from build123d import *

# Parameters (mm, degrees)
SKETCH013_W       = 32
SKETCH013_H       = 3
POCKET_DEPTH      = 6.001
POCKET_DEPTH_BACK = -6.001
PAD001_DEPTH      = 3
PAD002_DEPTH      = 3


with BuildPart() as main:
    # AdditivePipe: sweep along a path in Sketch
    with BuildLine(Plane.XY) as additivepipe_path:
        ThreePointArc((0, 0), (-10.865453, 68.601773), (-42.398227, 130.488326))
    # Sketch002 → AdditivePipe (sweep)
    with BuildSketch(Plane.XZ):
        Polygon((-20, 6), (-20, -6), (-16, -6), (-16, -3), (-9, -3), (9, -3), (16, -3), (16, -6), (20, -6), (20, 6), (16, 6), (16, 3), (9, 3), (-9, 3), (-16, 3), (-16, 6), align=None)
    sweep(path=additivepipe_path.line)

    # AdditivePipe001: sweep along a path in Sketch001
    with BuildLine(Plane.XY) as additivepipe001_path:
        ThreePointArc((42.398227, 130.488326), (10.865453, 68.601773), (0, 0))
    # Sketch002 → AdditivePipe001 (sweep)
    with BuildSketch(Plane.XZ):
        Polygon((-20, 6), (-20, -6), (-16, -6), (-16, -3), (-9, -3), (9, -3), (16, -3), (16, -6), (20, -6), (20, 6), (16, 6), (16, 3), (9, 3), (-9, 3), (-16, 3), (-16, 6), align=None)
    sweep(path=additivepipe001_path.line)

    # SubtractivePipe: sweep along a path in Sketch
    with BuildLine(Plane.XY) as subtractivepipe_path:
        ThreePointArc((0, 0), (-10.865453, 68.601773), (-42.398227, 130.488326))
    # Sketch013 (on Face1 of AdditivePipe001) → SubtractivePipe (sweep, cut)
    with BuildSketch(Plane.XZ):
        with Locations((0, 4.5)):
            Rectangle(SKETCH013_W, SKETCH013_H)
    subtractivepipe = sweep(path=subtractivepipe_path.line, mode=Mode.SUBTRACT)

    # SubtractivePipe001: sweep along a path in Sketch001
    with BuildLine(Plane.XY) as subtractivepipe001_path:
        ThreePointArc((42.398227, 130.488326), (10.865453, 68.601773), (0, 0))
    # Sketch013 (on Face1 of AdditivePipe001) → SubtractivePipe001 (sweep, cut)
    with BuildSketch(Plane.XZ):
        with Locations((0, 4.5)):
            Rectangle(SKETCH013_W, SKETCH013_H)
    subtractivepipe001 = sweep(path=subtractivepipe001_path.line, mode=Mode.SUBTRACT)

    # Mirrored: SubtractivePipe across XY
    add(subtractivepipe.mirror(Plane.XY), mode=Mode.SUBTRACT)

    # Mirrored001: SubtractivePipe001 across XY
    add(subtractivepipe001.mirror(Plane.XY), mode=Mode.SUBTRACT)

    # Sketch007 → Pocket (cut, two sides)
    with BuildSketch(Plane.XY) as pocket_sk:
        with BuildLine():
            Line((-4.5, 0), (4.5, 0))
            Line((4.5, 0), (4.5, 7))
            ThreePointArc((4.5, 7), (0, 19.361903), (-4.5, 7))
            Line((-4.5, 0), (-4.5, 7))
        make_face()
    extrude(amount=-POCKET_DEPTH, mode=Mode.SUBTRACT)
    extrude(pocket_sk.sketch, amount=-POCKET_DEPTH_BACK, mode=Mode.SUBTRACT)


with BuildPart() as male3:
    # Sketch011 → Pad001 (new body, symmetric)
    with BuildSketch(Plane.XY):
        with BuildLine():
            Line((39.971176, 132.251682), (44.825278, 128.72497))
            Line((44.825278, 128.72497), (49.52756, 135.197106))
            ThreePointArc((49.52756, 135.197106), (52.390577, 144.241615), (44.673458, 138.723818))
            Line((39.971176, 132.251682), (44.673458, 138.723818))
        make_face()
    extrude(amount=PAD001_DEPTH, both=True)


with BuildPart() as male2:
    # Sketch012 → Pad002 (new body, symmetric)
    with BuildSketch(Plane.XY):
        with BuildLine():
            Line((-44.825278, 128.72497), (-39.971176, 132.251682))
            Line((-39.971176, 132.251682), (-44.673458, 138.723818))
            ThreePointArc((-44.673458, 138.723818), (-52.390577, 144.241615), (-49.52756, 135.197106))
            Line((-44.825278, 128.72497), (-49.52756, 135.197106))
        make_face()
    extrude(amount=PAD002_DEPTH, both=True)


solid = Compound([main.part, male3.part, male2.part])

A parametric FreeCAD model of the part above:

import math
import FreeCAD as App
import Part
import Sketcher
from FreeCAD import Vector
Q = App.Units.Quantity

doc = App.newDocument("Part")
body = doc.addObject("PartDesign::Body", "Body")

sketch1 = body.newObject("Sketcher::SketchObject", "Sketch")
sketch1.AttachmentSupport = (doc.getObject("XZ_Plane"), [""])
sketch1.MapMode = "FlatFace"
sketch1.addGeometry([
    Part.LineSegment(Vector(-20, 6, 0), Vector(-20, -6, 0)),
    Part.LineSegment(Vector(-20, -6, 0), Vector(-16, -6, 0)),
    Part.LineSegment(Vector(-16, -6, 0), Vector(-16, -3, 0)),
    Part.LineSegment(Vector(-16, -3, 0), Vector(16, -3, 0)),
    Part.LineSegment(Vector(16, -3, 0), Vector(16, -6, 0)),
    Part.LineSegment(Vector(16, -6, 0), Vector(20, -6, 0)),
    Part.LineSegment(Vector(20, -6, 0), Vector(20, 6, 0)),
    Part.LineSegment(Vector(20, 6, 0), Vector(16, 6, 0)),
    Part.LineSegment(Vector(16, 6, 0), Vector(16, 3, 0)),
    Part.LineSegment(Vector(16, 3, 0), Vector(-16, 3, 0)),
    Part.LineSegment(Vector(-16, 3, 0), Vector(-16, 6, 0)),
    Part.LineSegment(Vector(-16, 6, 0), Vector(-20, 6, 0)),
], False)
sketch1.addConstraint([
    Sketcher.Constraint("Coincident", 0, 2, 1, 1),
    Sketcher.Constraint("Coincident", 1, 2, 2, 1),
    Sketcher.Constraint("Coincident", 2, 2, 3, 1),
    Sketcher.Constraint("Coincident", 3, 2, 4, 1),
    Sketcher.Constraint("Coincident", 4, 2, 5, 1),
    Sketcher.Constraint("Coincident", 5, 2, 6, 1),
    Sketcher.Constraint("Coincident", 6, 2, 7, 1),
    Sketcher.Constraint("Coincident", 7, 2, 8, 1),
    Sketcher.Constraint("Coincident", 8, 2, 9, 1),
    Sketcher.Constraint("Coincident", 9, 2, 10, 1),
    Sketcher.Constraint("Coincident", 10, 2, 11, 1),
    Sketcher.Constraint("Coincident", 11, 2, 0, 1),
    Sketcher.Constraint("Vertical", 0),
    Sketcher.Constraint("Horizontal", 1),
    Sketcher.Constraint("Vertical", 2),
    Sketcher.Constraint("Horizontal", 3),
    Sketcher.Constraint("Vertical", 4),
    Sketcher.Constraint("Horizontal", 5),
    Sketcher.Constraint("Vertical", 6),
    Sketcher.Constraint("Horizontal", 7),
    Sketcher.Constraint("Vertical", 8),
    Sketcher.Constraint("Horizontal", 9),
    Sketcher.Constraint("Vertical", 10),
    Sketcher.Constraint("Horizontal", 11),
    Sketcher.Constraint("Symmetric", 0, 2, 6, 2, -1, 1),
    Sketcher.Constraint("Symmetric", 2, 2, 8, 2, -1, 1),
    Sketcher.Constraint("Symmetric", 4, 2, 10, 2, -1, 1),
    Sketcher.Constraint("Symmetric", 1, 2, 4, 2, -2),
    Sketcher.Constraint("DistanceX", 1, 1, 1, 2, 4.0),
    Sketcher.Constraint("DistanceX", 3, 1, 3, 2, 32.0),
    Sketcher.Constraint("DistanceY", 0, 2, 0, 1, 12.0),
    Sketcher.Constraint("DistanceY", 2, 1, 2, 2, 3.0),
])

sketch2 = body.newObject("Sketcher::SketchObject", "Sketch001")
sketch2.AttachmentSupport = (doc.getObject("XY_Plane"), [""])
sketch2.MapMode = "FlatFace"
sketch2.addGeometry(Part.ArcOfCircle(Part.Circle(Vector(-222, 0, 0), Vector(0, 0, 1), 222), math.radians(0), math.radians(36)), False)
sketch2.addConstraint([
    Sketcher.Constraint("Coincident", 0, 1, -1, 1),
    Sketcher.Constraint("Radius", 0, 221.999993),
    Sketcher.Constraint("DistanceX", 0, 2, -1, 1, 42.398227),
    Sketcher.Constraint("DistanceY", -1, 1, 0, 2, 130.488326),
])
doc.recompute()

additivepipe = body.newObject("PartDesign::AdditivePipe", "AdditivePipe")
additivepipe.Profile = sketch1
additivepipe.Spine = (sketch2, ["Edge1"])

sketch3 = body.newObject("Sketcher::SketchObject", "Sketch002")
sketch3.AttachmentSupport = (doc.getObject("XZ_Plane"), [""])
sketch3.MapMode = "FlatFace"
sketch3.addGeometry([
    Part.LineSegment(Vector(-20, 6, 0), Vector(-20, -6, 0)),
    Part.LineSegment(Vector(-20, -6, 0), Vector(-16, -6, 0)),
    Part.LineSegment(Vector(-16, -6, 0), Vector(-16, -3, 0)),
    Part.LineSegment(Vector(-16, -3, 0), Vector(16, -3, 0)),
    Part.LineSegment(Vector(16, -3, 0), Vector(16, -6, 0)),
    Part.LineSegment(Vector(16, -6, 0), Vector(20, -6, 0)),
    Part.LineSegment(Vector(20, -6, 0), Vector(20, 6, 0)),
    Part.LineSegment(Vector(20, 6, 0), Vector(16, 6, 0)),
    Part.LineSegment(Vector(16, 6, 0), Vector(16, 3, 0)),
    Part.LineSegment(Vector(16, 3, 0), Vector(-16, 3, 0)),
    Part.LineSegment(Vector(-16, 3, 0), Vector(-16, 6, 0)),
    Part.LineSegment(Vector(-16, 6, 0), Vector(-20, 6, 0)),
], False)
sketch3.addConstraint([
    Sketcher.Constraint("Coincident", 0, 2, 1, 1),
    Sketcher.Constraint("Coincident", 1, 2, 2, 1),
    Sketcher.Constraint("Coincident", 2, 2, 3, 1),
    Sketcher.Constraint("Coincident", 3, 2, 4, 1),
    Sketcher.Constraint("Coincident", 4, 2, 5, 1),
    Sketcher.Constraint("Coincident", 5, 2, 6, 1),
    Sketcher.Constraint("Coincident", 6, 2, 7, 1),
    Sketcher.Constraint("Coincident", 7, 2, 8, 1),
    Sketcher.Constraint("Coincident", 8, 2, 9, 1),
    Sketcher.Constraint("Coincident", 9, 2, 10, 1),
    Sketcher.Constraint("Coincident", 10, 2, 11, 1),
    Sketcher.Constraint("Coincident", 11, 2, 0, 1),
    Sketcher.Constraint("Vertical", 0),
    Sketcher.Constraint("Horizontal", 1),
    Sketcher.Constraint("Vertical", 2),
    Sketcher.Constraint("Horizontal", 3),
    Sketcher.Constraint("Vertical", 4),
    Sketcher.Constraint("Horizontal", 5),
    Sketcher.Constraint("Vertical", 6),
    Sketcher.Constraint("Horizontal", 7),
    Sketcher.Constraint("Vertical", 8),
    Sketcher.Constraint("Horizontal", 9),
    Sketcher.Constraint("Vertical", 10),
    Sketcher.Constraint("Horizontal", 11),
    Sketcher.Constraint("Symmetric", 0, 2, 6, 2, -1, 1),
    Sketcher.Constraint("Symmetric", 2, 2, 8, 2, -1, 1),
    Sketcher.Constraint("Symmetric", 4, 2, 10, 2, -1, 1),
    Sketcher.Constraint("Symmetric", 1, 2, 4, 2, -2),
    Sketcher.Constraint("DistanceX", 1, 1, 1, 2, 4.0),
    Sketcher.Constraint("DistanceX", 3, 1, 3, 2, 32.0),
    Sketcher.Constraint("DistanceY", 0, 2, 0, 1, 12.0),
    Sketcher.Constraint("DistanceY", 2, 1, 2, 2, 3.0),
])

sketch4 = body.newObject("Sketcher::SketchObject", "Sketch003")
sketch4.AttachmentSupport = (doc.getObject("XY_Plane"), [""])
sketch4.MapMode = "FlatFace"
sketch4.addGeometry(Part.ArcOfCircle(Part.Circle(Vector(222, 0, 0), Vector(0, 0, 1), 222), math.radians(144), math.radians(180)), False)
sketch4.addConstraint([
    Sketcher.Constraint("Coincident", 0, 2, -1, 1),
    Sketcher.Constraint("Radius", 0, 221.999993),
    Sketcher.Constraint("DistanceX", -1, 1, 0, 1, 42.398227),
    Sketcher.Constraint("DistanceY", -1, 1, 0, 1, 130.488326),
])
doc.recompute()

additivepipe2 = body.newObject("PartDesign::AdditivePipe", "AdditivePipe001")
additivepipe2.Profile = sketch3
additivepipe2.Spine = (sketch4, ["Edge1"])

sketch5 = body.newObject("Sketcher::SketchObject", "Sketch004")
sketch5.AttachmentSupport = (doc.getObject("XZ_Plane"), [""])
sketch5.MapMode = "FlatFace"
sketch5.addGeometry([
    Part.LineSegment(Vector(-16, 6, 0), Vector(-16, 3, 0)),
    Part.LineSegment(Vector(-16, 3, 0), Vector(16, 3, 0)),
    Part.LineSegment(Vector(16, 3, 0), Vector(16, 6, 0)),
    Part.LineSegment(Vector(16, 6, 0), Vector(-16, 6, 0)),
], False)
sketch5.addConstraint([
    Sketcher.Constraint("Coincident", 0, 2, 1, 1),
    Sketcher.Constraint("Coincident", 1, 2, 2, 1),
    Sketcher.Constraint("Coincident", 2, 2, 3, 1),
    Sketcher.Constraint("Coincident", 3, 2, 0, 1),
    Sketcher.Constraint("Vertical", 0),
    Sketcher.Constraint("Horizontal", 1),
    Sketcher.Constraint("Vertical", 2),
    Sketcher.Constraint("Horizontal", 3),
    Sketcher.Constraint("DistanceX", 1, 1, 1, 2, 32.0),
    Sketcher.Constraint("DistanceY", 0, 2, 0, 1, 3.0),
    Sketcher.Constraint("DistanceX", 0, 2, -1, 1, 16.0),
    Sketcher.Constraint("DistanceY", -1, 1, 0, 2, 3.0),
])

sketch6 = body.newObject("Sketcher::SketchObject", "Sketch005")
sketch6.AttachmentSupport = (doc.getObject("XY_Plane"), [""])
sketch6.MapMode = "FlatFace"
sketch6.addGeometry(Part.ArcOfCircle(Part.Circle(Vector(-222, 0, 0), Vector(0, 0, 1), 222), math.radians(0), math.radians(36)), False)
sketch6.addConstraint([
    Sketcher.Constraint("Coincident", 0, 1, -1, 1),
    Sketcher.Constraint("Radius", 0, 221.999993),
    Sketcher.Constraint("DistanceX", 0, 2, -1, 1, 42.398227),
    Sketcher.Constraint("DistanceY", -1, 1, 0, 2, 130.488326),
])
doc.recompute()

subtractivepipe = body.newObject("PartDesign::SubtractivePipe", "SubtractivePipe")
subtractivepipe.Profile = sketch5
subtractivepipe.Spine = (sketch6, ["Edge1"])

sketch7 = body.newObject("Sketcher::SketchObject", "Sketch006")
sketch7.AttachmentSupport = (doc.getObject("XZ_Plane"), [""])
sketch7.MapMode = "FlatFace"
sketch7.addGeometry([
    Part.LineSegment(Vector(-16, 6, 0), Vector(-16, 3, 0)),
    Part.LineSegment(Vector(-16, 3, 0), Vector(16, 3, 0)),
    Part.LineSegment(Vector(16, 3, 0), Vector(16, 6, 0)),
    Part.LineSegment(Vector(16, 6, 0), Vector(-16, 6, 0)),
], False)
sketch7.addConstraint([
    Sketcher.Constraint("Coincident", 0, 2, 1, 1),
    Sketcher.Constraint("Coincident", 1, 2, 2, 1),
    Sketcher.Constraint("Coincident", 2, 2, 3, 1),
    Sketcher.Constraint("Coincident", 3, 2, 0, 1),
    Sketcher.Constraint("Vertical", 0),
    Sketcher.Constraint("Horizontal", 1),
    Sketcher.Constraint("Vertical", 2),
    Sketcher.Constraint("Horizontal", 3),
    Sketcher.Constraint("DistanceX", 1, 1, 1, 2, 32.0),
    Sketcher.Constraint("DistanceY", 0, 2, 0, 1, 3.0),
    Sketcher.Constraint("DistanceX", 0, 2, -1, 1, 16.0),
    Sketcher.Constraint("DistanceY", -1, 1, 0, 2, 3.0),
])

sketch8 = body.newObject("Sketcher::SketchObject", "Sketch007")
sketch8.AttachmentSupport = (doc.getObject("XY_Plane"), [""])
sketch8.MapMode = "FlatFace"
sketch8.addGeometry(Part.ArcOfCircle(Part.Circle(Vector(222, 0, 0), Vector(0, 0, 1), 222), math.radians(144), math.radians(180)), False)
sketch8.addConstraint([
    Sketcher.Constraint("Coincident", 0, 2, -1, 1),
    Sketcher.Constraint("Radius", 0, 221.999993),
    Sketcher.Constraint("DistanceX", -1, 1, 0, 1, 42.398227),
    Sketcher.Constraint("DistanceY", -1, 1, 0, 1, 130.488326),
])
doc.recompute()

subtractivepipe2 = body.newObject("PartDesign::SubtractivePipe", "SubtractivePipe001")
subtractivepipe2.Profile = sketch7
subtractivepipe2.Spine = (sketch8, ["Edge1"])
doc.recompute()

mirrored = body.newObject("PartDesign::Mirrored", "Mirrored")
mirrored.Originals = [subtractivepipe]
mirrored.MirrorPlane = (doc.getObject("XY_Plane"), [""])
body.Tip = mirrored
doc.recompute()

mirrored2 = body.newObject("PartDesign::Mirrored", "Mirrored001")
mirrored2.Originals = [subtractivepipe2]
mirrored2.MirrorPlane = (doc.getObject("XY_Plane"), [""])
body.Tip = mirrored2

sketch9 = body.newObject("Sketcher::SketchObject", "Sketch008")
sketch9.AttachmentSupport = (doc.getObject("XY_Plane"), [""])
sketch9.MapMode = "FlatFace"
sketch9.addGeometry([
    Part.LineSegment(Vector(-4, 0, 0), Vector(4, 0, 0)),
    Part.LineSegment(Vector(4, 0, 0), Vector(4, 7, 0)),
    Part.ArcOfCircle(Part.Circle(Vector(0, 12, 0), Vector(0, 0, 1), 7), math.radians(-50), math.radians(230)),
    Part.LineSegment(Vector(-4, 7, 0), Vector(-4, 0, 0)),
], False)
sketch9.addConstraint([
    Sketcher.Constraint("Coincident", 0, 2, 1, 1),
    Sketcher.Constraint("Coincident", 1, 2, 2, 1),
    Sketcher.Constraint("Coincident", 2, 2, 3, 1),
    Sketcher.Constraint("Coincident", 3, 2, 0, 1),
    Sketcher.Constraint("Horizontal", 0),
    Sketcher.Constraint("Vertical", 1),
    Sketcher.Constraint("Vertical", 3),
    Sketcher.Constraint("Symmetric", 0, 2, 3, 2, -1, 1),
    Sketcher.Constraint("PointOnObject", 2, 3, -2),
    Sketcher.Constraint("Radius", 2, 7.0),
    Sketcher.Constraint("DistanceX", 0, 1, 0, 2, 9.0),
    Sketcher.Constraint("DistanceY", 1, 1, 1, 2, 7.0),
])
pocket1 = body.newObject("PartDesign::Pocket", "Pocket")
pocket1.Profile = sketch9
pocket1.Type = "ThroughAll"
pocket1.Midplane = True
body2 = doc.addObject("PartDesign::Body", "Body001")

sketch10 = body2.newObject("Sketcher::SketchObject", "Sketch009")
sketch10.AttachmentSupport = (doc.getObject("XY_Plane001"), [""])
sketch10.MapMode = "FlatFace"
sketch10.addGeometry([
    Part.LineSegment(Vector(40, 132, 0), Vector(45, 129, 0)),
    Part.LineSegment(Vector(45, 129, 0), Vector(50, 135, 0)),
    Part.ArcOfCircle(Part.Circle(Vector(49, 140, 0), Vector(0, 0, 1), 5), math.radians(-89), math.radians(197)),
    Part.LineSegment(Vector(45, 139, 0), Vector(40, 132, 0)),
], False)
sketch10.addConstraint([
    Sketcher.Constraint("Coincident", 0, 2, 1, 1),
    Sketcher.Constraint("Coincident", 1, 2, 2, 1),
    Sketcher.Constraint("Coincident", 2, 2, 3, 1),
    Sketcher.Constraint("Coincident", 3, 2, 0, 1),
    Sketcher.Constraint("Perpendicular", 0, 1),
    Sketcher.Constraint("Parallel", 1, 3),
    Sketcher.Constraint("Equal", 1, 3),
    Sketcher.Constraint("Radius", 2, 5.0),
    Sketcher.Constraint("Angle", 0, Q("-36.000004 deg")),
    Sketcher.Constraint("Distance", 0, 6.0),
    Sketcher.Constraint("Distance", 1, 8.0),
    Sketcher.Constraint("DistanceX", -1, 1, 2, 3, 49.45165),
    Sketcher.Constraint("DistanceY", -1, 1, 2, 3, 140.19653),
])
pad1 = body2.newObject("PartDesign::Pad", "Pad")
pad1.Profile = sketch10
pad1.Length = 6
pad1.Midplane = True
body3 = doc.addObject("PartDesign::Body", "Body002")

sketch11 = body3.newObject("Sketcher::SketchObject", "Sketch010")
sketch11.AttachmentSupport = (doc.getObject("XY_Plane002"), [""])
sketch11.MapMode = "FlatFace"
sketch11.addGeometry([
    Part.LineSegment(Vector(-45, 129, 0), Vector(-40, 132, 0)),
    Part.LineSegment(Vector(-40, 132, 0), Vector(-45, 139, 0)),
    Part.ArcOfCircle(Part.Circle(Vector(-49, 140, 0), Vector(0, 0, 1), 5), math.radians(-17), math.radians(269)),
    Part.LineSegment(Vector(-50, 135, 0), Vector(-45, 129, 0)),
], False)
sketch11.addConstraint([
    Sketcher.Constraint("Coincident", 0, 2, 1, 1),
    Sketcher.Constraint("Coincident", 1, 2, 2, 1),
    Sketcher.Constraint("Coincident", 2, 2, 3, 1),
    Sketcher.Constraint("Coincident", 3, 2, 0, 1),
    Sketcher.Constraint("Perpendicular", 0, 1),
    Sketcher.Constraint("Parallel", 1, 3),
    Sketcher.Constraint("Equal", 1, 3),
    Sketcher.Constraint("Radius", 2, 5.0),
    Sketcher.Constraint("Angle", 0, Q("36.000004 deg")),
    Sketcher.Constraint("Distance", 0, 6.0),
    Sketcher.Constraint("Distance", 1, 8.0),
    Sketcher.Constraint("DistanceX", 2, 3, -1, 1, 49.45165),
    Sketcher.Constraint("DistanceY", -1, 1, 2, 3, 140.19653),
])
pad2 = body3.newObject("PartDesign::Pad", "Pad001")
pad2.Profile = sketch11
pad2.Length = 6
pad2.Midplane = True

doc.recompute()
